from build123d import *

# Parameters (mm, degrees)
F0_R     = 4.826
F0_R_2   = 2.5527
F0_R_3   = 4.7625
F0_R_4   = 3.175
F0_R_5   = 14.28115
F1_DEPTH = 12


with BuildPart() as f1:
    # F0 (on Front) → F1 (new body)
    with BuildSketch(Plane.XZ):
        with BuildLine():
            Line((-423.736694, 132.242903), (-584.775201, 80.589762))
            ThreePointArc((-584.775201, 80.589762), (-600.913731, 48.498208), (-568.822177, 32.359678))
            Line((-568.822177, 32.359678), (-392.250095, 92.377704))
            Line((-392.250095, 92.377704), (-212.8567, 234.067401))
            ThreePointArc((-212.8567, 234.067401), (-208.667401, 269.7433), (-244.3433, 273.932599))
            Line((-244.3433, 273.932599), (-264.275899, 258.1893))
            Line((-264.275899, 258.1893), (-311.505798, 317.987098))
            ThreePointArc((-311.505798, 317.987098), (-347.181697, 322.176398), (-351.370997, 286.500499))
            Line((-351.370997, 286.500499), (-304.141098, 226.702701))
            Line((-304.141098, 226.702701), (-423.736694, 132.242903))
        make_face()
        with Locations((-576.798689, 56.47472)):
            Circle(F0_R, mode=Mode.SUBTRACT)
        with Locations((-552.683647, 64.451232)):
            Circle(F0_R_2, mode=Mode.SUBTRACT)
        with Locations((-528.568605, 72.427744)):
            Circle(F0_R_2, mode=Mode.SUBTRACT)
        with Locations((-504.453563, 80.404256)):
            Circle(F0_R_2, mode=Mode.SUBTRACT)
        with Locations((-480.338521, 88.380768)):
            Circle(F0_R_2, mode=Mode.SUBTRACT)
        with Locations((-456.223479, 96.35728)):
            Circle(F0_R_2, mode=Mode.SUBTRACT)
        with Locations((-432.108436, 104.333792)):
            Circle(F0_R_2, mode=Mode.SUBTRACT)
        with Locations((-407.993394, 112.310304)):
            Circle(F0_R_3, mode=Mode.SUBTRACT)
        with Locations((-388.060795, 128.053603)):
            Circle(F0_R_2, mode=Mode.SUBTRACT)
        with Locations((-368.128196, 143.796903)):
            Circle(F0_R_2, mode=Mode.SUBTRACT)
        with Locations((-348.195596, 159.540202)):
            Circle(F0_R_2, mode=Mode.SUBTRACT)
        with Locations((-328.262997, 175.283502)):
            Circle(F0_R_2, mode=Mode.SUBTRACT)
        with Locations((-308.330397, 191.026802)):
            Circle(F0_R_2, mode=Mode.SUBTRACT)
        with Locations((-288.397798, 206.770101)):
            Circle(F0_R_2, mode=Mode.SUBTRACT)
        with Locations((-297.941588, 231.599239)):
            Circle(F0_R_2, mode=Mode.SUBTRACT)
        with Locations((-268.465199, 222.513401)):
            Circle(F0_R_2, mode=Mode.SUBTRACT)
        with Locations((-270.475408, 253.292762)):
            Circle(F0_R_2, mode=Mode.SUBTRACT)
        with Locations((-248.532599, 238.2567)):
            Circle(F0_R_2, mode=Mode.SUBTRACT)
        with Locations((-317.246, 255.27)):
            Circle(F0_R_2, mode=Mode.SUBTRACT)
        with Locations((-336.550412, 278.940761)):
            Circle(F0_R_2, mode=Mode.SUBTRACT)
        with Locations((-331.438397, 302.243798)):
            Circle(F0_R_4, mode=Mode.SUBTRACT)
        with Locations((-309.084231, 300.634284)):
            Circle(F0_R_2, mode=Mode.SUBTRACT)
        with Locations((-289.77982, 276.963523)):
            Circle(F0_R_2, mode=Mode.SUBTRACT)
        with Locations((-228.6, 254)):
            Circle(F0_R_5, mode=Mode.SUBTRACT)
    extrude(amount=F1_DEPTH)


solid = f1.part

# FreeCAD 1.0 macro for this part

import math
import FreeCAD as App
import Part
import Sketcher
Q = App.Units.Quantity

doc = App.newDocument("Part")
body = doc.addObject("PartDesign::Body", "Body")

# Sketch on XZ plane
sketch1 = doc.addObject("Sketcher::SketchObject", "Sketch")
body.addObject(sketch1)
sketch1.AttachmentSupport = (doc.XZ_Plane, [""])
sketch1.MapMode = "FlatFace"
sketch1.addGeometry([
    Part.LineSegment(App.Vector(-423.736694, 132.242903, 0), App.Vector(-584.775201, 80.589762, 0)),  # 0
    Part.ArcOfCircle(Part.Circle(App.Vector(-576.798689, 56.47472, 0), App.Vector(0, 0, 1), 25.4), math.radians(108.302622), math.radians(288.302622)),  # 1
    Part.LineSegment(App.Vector(-568.822177, 32.359678, 0), App.Vector(-392.250095, 92.377704, 0)),  # 2
    Part.LineSegment(App.Vector(-392.250095, 92.377704, 0), App.Vector(-212.8567, 234.067401, 0)),  # 3
    Part.ArcOfCircle(Part.Circle(App.Vector(-228.6, 254, 0), App.Vector(0, 0, 1), 25.4), math.radians(-51.697377), math.radians(128.302623)),  # 4
    Part.LineSegment(App.Vector(-244.3433, 273.932599, 0), App.Vector(-264.275899, 258.1893, 0)),  # 5
    Part.LineSegment(App.Vector(-264.275899, 258.1893, 0), App.Vector(-311.505798, 317.987098, 0)),  # 6
    Part.ArcOfCircle(Part.Circle(App.Vector(-331.438398, 302.243799, 0), App.Vector(0, 0, 1), 25.4), math.radians(38.302622), math.radians(218.302622)),  # 7
    Part.LineSegment(App.Vector(-351.370997, 286.500499, 0), App.Vector(-304.141098, 226.702701, 0)),  # 8
    Part.LineSegment(App.Vector(-304.141098, 226.702701, 0), App.Vector(-423.736694, 132.242903, 0)),  # 9
    Part.Circle(App.Vector(-576.798689, 56.47472, 0), App.Vector(0, 0, 1), 4.826),  # 10
    Part.Circle(App.Vector(-552.683647, 64.451232, 0), App.Vector(0, 0, 1), 2.5527),  # 11
    Part.Circle(App.Vector(-528.568605, 72.427744, 0), App.Vector(0, 0, 1), 2.5527),  # 12
    Part.Circle(App.Vector(-504.453563, 80.404256, 0), App.Vector(0, 0, 1), 2.5527),  # 13
    Part.Circle(App.Vector(-480.338521, 88.380768, 0), App.Vector(0, 0, 1), 2.5527),  # 14
    Part.Circle(App.Vector(-456.223479, 96.35728, 0), App.Vector(0, 0, 1), 2.5527),  # 15
    Part.Circle(App.Vector(-432.108436, 104.333792, 0), App.Vector(0, 0, 1), 2.5527),  # 16
    Part.Circle(App.Vector(-407.993394, 112.310304, 0), App.Vector(0, 0, 1), 4.7625),  # 17
    Part.Circle(App.Vector(-388.060795, 128.053603, 0), App.Vector(0, 0, 1), 2.5527),  # 18
    Part.Circle(App.Vector(-368.128196, 143.796903, 0), App.Vector(0, 0, 1), 2.5527),  # 19
    Part.Circle(App.Vector(-348.195596, 159.540202, 0), App.Vector(0, 0, 1), 2.5527),  # 20
    Part.Circle(App.Vector(-328.262997, 175.283502, 0), App.Vector(0, 0, 1), 2.5527),  # 21
    Part.Circle(App.Vector(-308.330397, 191.026802, 0), App.Vector(0, 0, 1), 2.5527),  # 22
    Part.Circle(App.Vector(-288.397798, 206.770101, 0), App.Vector(0, 0, 1), 2.5527),  # 23
    Part.Circle(App.Vector(-268.465199, 222.513401, 0), App.Vector(0, 0, 1), 2.5527),  # 24
    Part.Circle(App.Vector(-297.941588, 231.599239, 0), App.Vector(0, 0, 1), 2.5527),  # 25
    Part.Circle(App.Vector(-248.532599, 238.2567, 0), App.Vector(0, 0, 1), 2.5527),  # 26
    Part.Circle(App.Vector(-317.246, 255.27, 0), App.Vector(0, 0, 1), 2.5527),  # 27
    Part.Circle(App.Vector(-336.550412, 278.940761, 0), App.Vector(0, 0, 1), 2.5527),  # 28
    Part.Circle(App.Vector(-331.438397, 302.243798, 0), App.Vector(0, 0, 1), 3.175),  # 29
    Part.Circle(App.Vector(-309.084231, 300.634284, 0), App.Vector(0, 0, 1), 2.5527),  # 30
    Part.Circle(App.Vector(-270.475408, 253.292762, 0), App.Vector(0, 0, 1), 2.5527),  # 31
    Part.Circle(App.Vector(-228.6, 254, 0), App.Vector(0, 0, 1), 14.28115),  # 32
    Part.Circle(App.Vector(-289.77982, 276.963523, 0), App.Vector(0, 0, 1), 2.5527),  # 33
], False)
sketch1.addConstraint([
    Sketcher.Constraint("Coincident", 0, 2, 1, 1),
    Sketcher.Constraint("Coincident", 1, 2, 2, 1),
    Sketcher.Constraint("Coincident", 2, 2, 3, 1),
    Sketcher.Constraint("Tangent", 3, 2, 4, 1),
    Sketcher.Constraint("Tangent", 4, 2, 5, 1),
    Sketcher.Constraint("Coincident", 5, 2, 6, 1),
    Sketcher.Constraint("Tangent", 6, 2, 7, 1),
    Sketcher.Constraint("Tangent", 7, 2, 8, 1),
    Sketcher.Constraint("Coincident", 8, 2, 9, 1),
    Sketcher.Constraint("Coincident", 9, 2, 0, 1),
    Sketcher.Constraint("Coincident", 10, 3, 1, 3),
    Sketcher.Constraint("Coincident", 29, 3, 7, 3),
    Sketcher.Constraint("Coincident", 32, 3, 4, 3),
    Sketcher.Constraint("Equal", 1, 4),
    Sketcher.Constraint("Equal", 4, 7),
    Sketcher.Constraint("Equal", 11, 12),
    Sketcher.Constraint("Equal", 12, 13),
    Sketcher.Constraint("Equal", 13, 14),
    Sketcher.Constraint("Equal", 14, 15),
    Sketcher.Constraint("Equal", 15, 16),
    Sketcher.Constraint("Equal", 16, 18),
    Sketcher.Constraint("Equal", 18, 19),
    Sketcher.Constraint("Equal", 19, 20),
    Sketcher.Constraint("Equal", 20, 21),
    Sketcher.Constraint("Equal", 21, 22),
    Sketcher.Constraint("Equal", 22, 23),
    Sketcher.Constraint("Equal", 23, 24),
    Sketcher.Constraint("Equal", 24, 25),
    Sketcher.Constraint("Equal", 25, 26),
    Sketcher.Constraint("Equal", 26, 27),
    Sketcher.Constraint("Equal", 27, 28),
    Sketcher.Constraint("Equal", 28, 30),
    Sketcher.Constraint("Equal", 30, 31),
    Sketcher.Constraint("Equal", 31, 33),
    Sketcher.Constraint("Parallel", 3, 5),
    Sketcher.Constraint("Perpendicular", 5, 6),
    Sketcher.Constraint("Parallel", 6, 8),
    Sketcher.Constraint("Perpendicular", 8, 9),
    Sketcher.Constraint("Equal", 6, 8),
    Sketcher.Constraint("Radius", 1, Q("1 in")),
    Sketcher.Constraint("Diameter", 10, Q("0.38 in")),
    Sketcher.Constraint("Diameter", 29, Q("0.25 in")),
    Sketcher.Constraint("Distance", 3, Q("9 in")),
    Sketcher.Constraint("Distance", 5, Q("1 in")),
    Sketcher.Constraint("Distance", 6, Q("3 in")),
    Sketcher.Constraint("Distance", 9, Q("6 in")),
    Sketcher.Constraint("Diameter", 11, Q("0.201 in")),
    Sketcher.Constraint("Diameter", 17, Q("0.375 in")),
    Sketcher.Constraint("DistanceX", 4, 3, -1, 1, Q("9 in")),
    Sketcher.Constraint("DistanceY", -1, 1, 4, 3, Q("10 in")),
    Sketcher.Constraint("Diameter", 32, Q("1.1245 in")),
    Sketcher.Constraint("DistanceX", 27, 3, -1, 1, Q("12.49 in")),
    Sketcher.Constraint("DistanceY", -1, 1, 27, 3, Q("10.05 in")),
    Sketcher.Constraint("Distance", 2, 186.493602),
    Sketcher.Constraint("DistanceY", -1, 1, 7, 3, 302.243799),
    Sketcher.Constraint("DistanceY", -1, 1, 20, 3, 159.540202),
    Sketcher.Constraint("DistanceY", -1, 1, 21, 3, 175.283502),
    Sketcher.Constraint("DistanceY", -1, 1, 22, 3, 191.026802),
    Sketcher.Constraint("DistanceX", 23, 3, -1, 1, 288.397798),
    Sketcher.Constraint("DistanceY", -1, 1, 23, 3, 206.770101),
    Sketcher.Constraint("DistanceX", 24, 3, -1, 1, 268.465199),
    Sketcher.Constraint("DistanceY", -1, 1, 24, 3, 222.513401),
    Sketcher.Constraint("DistanceX", 26, 3, -1, 1, 248.532599),
    Sketcher.Constraint("DistanceY", -1, 1, 26, 3, 238.2567),
    Sketcher.Constraint("DistanceX", 0, 2, -1, 1, 584.775201),
    Sketcher.Constraint("DistanceX", 17, 3, 18, 3, 19.932599),
    Sketcher.Constraint("DistanceY", 17, 3, 18, 3, 15.743299),
    Sketcher.Constraint("DistanceX", 18, 3, 19, 3, 19.932599),
    Sketcher.Constraint("DistanceY", 18, 3, 19, 3, 15.7433),
    Sketcher.Constraint("DistanceX", 19, 3, 20, 3, 19.9326),
    Sketcher.Constraint("DistanceY", 19, 3, 20, 3, 15.743299),
    Sketcher.Constraint("DistanceX", 20, 3, 21, 3, 19.932599),
    Sketcher.Constraint("DistanceX", 21, 3, 22, 3, 19.9326),
    Sketcher.Constraint("DistanceX", 22, 3, 23, 3, 19.932599),
    Sketcher.Constraint("DistanceX", 1, 3, -1, 1, 576.798689),
    Sketcher.Constraint("DistanceY", -1, 1, 1, 3, 56.47472),
    Sketcher.Constraint("DistanceX", 14, 3, -1, 1, 480.338521),
    Sketcher.Constraint("DistanceY", -1, 1, 14, 3, 88.380768),
    Sketcher.Constraint("DistanceX", 15, 3, -1, 1, 456.223479),
    Sketcher.Constraint("DistanceY", -1, 1, 15, 3, 96.35728),
    Sketcher.Constraint("DistanceX", 25, 3, -1, 1, 297.941588),
    Sketcher.Constraint("DistanceY", -1, 1, 25, 3, 231.599239),
    Sketcher.Constraint("DistanceX", 28, 3, -1, 1, 336.550412),
    Sketcher.Constraint("DistanceY", -1, 1, 28, 3, 278.940761),
    Sketcher.Constraint("DistanceX", 30, 3, -1, 1, 309.084231),
    Sketcher.Constraint("DistanceX", 31, 3, -1, 1, 270.475408),
    Sketcher.Constraint("DistanceX", 33, 3, -1, 1, 289.77982),
    Sketcher.Constraint("DistanceX", 11, 3, 7, 3, 221.245249),
    Sketcher.Constraint("DistanceY", 11, 3, 4, 3, 189.548768),
    Sketcher.Constraint("DistanceX", 11, 3, 12, 3, 24.115042),
    Sketcher.Constraint("DistanceY", 11, 3, 12, 3, 7.976512),
    Sketcher.Constraint("DistanceY", 12, 3, 13, 3, 7.976512),
    Sketcher.Constraint("DistanceX", 13, 3, 14, 3, 24.115042),
    Sketcher.Constraint("DistanceY", 15, 3, 16, 3, 7.976512),
    Sketcher.Constraint("DistanceX", 12, 3, 16, 3, 96.460169),
    Sketcher.Constraint("DistanceY", 24, 3, 31, 3, 30.779361),
    Sketcher.Constraint("DistanceY", 33, 3, 30, 3, 23.670761),
    Sketcher.Constraint("DistanceY", 31, 3, 33, 3, 23.670761),
])
pad1 = doc.addObject("PartDesign::Pad", "Pad")
body.addObject(pad1)
pad1.Profile = sketch1
pad1.Length = 12

doc.recompute()
